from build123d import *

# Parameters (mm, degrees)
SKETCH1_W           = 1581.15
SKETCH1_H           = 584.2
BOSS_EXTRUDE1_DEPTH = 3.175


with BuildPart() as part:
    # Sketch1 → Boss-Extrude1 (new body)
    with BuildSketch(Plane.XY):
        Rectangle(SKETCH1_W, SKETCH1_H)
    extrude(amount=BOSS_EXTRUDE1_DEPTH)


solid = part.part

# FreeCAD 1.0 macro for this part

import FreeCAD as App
import Part
import Sketcher
Q = App.Units.Quantity


def add_polygon(sketch, points):
    """Adds a closed chain of lines whose ends are joined by coincident constraints."""
    first, n = sketch.GeometryCount, len(points)
    for a, b in zip(points, points[1:] + points[:1]):
        sketch.addGeometry(Part.LineSegment(App.Vector(*a, 0), App.Vector(*b, 0)), False)
    for i in range(n):
        sketch.addConstraint(Sketcher.Constraint("Coincident", first + i, 2, first + (i + 1) % n, 1))

doc = App.newDocument("Part")
body = doc.addObject("PartDesign::Body", "Body")

# Sketch on XY plane
sketch1 = body.newObject("Sketcher::SketchObject", "Sketch")
sketch1.AttachmentSupport = (doc.getObject("XY_Plane"), [""])
sketch1.MapMode = "FlatFace"
add_polygon(sketch1, [(-790.575, 292.1), (-790.575, -292.1), (790.575, -292.1), (790.575, 292.1)])  # lines 0-3
sketch1.addConstraint(Sketcher.Constraint("Vertical", 0))
sketch1.addConstraint(Sketcher.Constraint("Horizontal", 1))
sketch1.addConstraint(Sketcher.Constraint("Vertical", 2))
sketch1.addConstraint(Sketcher.Constraint("Horizontal", 3))
sketch1.addConstraint(Sketcher.Constraint("Symmetric", 0, 2, 2, 2, -1, 1))
sketch1.addConstraint(Sketcher.Constraint("DistanceY", 0, 2, 0, 1, Q("23 in")))
sketch1.addConstraint(Sketcher.Constraint("DistanceX", 1, 1, 1, 2, Q("62.25 in")))
pad1 = body.newObject("PartDesign::Pad", "Pad")
pad1.Profile = sketch1
pad1.Length = Q("0.125 in")

doc.recompute()
